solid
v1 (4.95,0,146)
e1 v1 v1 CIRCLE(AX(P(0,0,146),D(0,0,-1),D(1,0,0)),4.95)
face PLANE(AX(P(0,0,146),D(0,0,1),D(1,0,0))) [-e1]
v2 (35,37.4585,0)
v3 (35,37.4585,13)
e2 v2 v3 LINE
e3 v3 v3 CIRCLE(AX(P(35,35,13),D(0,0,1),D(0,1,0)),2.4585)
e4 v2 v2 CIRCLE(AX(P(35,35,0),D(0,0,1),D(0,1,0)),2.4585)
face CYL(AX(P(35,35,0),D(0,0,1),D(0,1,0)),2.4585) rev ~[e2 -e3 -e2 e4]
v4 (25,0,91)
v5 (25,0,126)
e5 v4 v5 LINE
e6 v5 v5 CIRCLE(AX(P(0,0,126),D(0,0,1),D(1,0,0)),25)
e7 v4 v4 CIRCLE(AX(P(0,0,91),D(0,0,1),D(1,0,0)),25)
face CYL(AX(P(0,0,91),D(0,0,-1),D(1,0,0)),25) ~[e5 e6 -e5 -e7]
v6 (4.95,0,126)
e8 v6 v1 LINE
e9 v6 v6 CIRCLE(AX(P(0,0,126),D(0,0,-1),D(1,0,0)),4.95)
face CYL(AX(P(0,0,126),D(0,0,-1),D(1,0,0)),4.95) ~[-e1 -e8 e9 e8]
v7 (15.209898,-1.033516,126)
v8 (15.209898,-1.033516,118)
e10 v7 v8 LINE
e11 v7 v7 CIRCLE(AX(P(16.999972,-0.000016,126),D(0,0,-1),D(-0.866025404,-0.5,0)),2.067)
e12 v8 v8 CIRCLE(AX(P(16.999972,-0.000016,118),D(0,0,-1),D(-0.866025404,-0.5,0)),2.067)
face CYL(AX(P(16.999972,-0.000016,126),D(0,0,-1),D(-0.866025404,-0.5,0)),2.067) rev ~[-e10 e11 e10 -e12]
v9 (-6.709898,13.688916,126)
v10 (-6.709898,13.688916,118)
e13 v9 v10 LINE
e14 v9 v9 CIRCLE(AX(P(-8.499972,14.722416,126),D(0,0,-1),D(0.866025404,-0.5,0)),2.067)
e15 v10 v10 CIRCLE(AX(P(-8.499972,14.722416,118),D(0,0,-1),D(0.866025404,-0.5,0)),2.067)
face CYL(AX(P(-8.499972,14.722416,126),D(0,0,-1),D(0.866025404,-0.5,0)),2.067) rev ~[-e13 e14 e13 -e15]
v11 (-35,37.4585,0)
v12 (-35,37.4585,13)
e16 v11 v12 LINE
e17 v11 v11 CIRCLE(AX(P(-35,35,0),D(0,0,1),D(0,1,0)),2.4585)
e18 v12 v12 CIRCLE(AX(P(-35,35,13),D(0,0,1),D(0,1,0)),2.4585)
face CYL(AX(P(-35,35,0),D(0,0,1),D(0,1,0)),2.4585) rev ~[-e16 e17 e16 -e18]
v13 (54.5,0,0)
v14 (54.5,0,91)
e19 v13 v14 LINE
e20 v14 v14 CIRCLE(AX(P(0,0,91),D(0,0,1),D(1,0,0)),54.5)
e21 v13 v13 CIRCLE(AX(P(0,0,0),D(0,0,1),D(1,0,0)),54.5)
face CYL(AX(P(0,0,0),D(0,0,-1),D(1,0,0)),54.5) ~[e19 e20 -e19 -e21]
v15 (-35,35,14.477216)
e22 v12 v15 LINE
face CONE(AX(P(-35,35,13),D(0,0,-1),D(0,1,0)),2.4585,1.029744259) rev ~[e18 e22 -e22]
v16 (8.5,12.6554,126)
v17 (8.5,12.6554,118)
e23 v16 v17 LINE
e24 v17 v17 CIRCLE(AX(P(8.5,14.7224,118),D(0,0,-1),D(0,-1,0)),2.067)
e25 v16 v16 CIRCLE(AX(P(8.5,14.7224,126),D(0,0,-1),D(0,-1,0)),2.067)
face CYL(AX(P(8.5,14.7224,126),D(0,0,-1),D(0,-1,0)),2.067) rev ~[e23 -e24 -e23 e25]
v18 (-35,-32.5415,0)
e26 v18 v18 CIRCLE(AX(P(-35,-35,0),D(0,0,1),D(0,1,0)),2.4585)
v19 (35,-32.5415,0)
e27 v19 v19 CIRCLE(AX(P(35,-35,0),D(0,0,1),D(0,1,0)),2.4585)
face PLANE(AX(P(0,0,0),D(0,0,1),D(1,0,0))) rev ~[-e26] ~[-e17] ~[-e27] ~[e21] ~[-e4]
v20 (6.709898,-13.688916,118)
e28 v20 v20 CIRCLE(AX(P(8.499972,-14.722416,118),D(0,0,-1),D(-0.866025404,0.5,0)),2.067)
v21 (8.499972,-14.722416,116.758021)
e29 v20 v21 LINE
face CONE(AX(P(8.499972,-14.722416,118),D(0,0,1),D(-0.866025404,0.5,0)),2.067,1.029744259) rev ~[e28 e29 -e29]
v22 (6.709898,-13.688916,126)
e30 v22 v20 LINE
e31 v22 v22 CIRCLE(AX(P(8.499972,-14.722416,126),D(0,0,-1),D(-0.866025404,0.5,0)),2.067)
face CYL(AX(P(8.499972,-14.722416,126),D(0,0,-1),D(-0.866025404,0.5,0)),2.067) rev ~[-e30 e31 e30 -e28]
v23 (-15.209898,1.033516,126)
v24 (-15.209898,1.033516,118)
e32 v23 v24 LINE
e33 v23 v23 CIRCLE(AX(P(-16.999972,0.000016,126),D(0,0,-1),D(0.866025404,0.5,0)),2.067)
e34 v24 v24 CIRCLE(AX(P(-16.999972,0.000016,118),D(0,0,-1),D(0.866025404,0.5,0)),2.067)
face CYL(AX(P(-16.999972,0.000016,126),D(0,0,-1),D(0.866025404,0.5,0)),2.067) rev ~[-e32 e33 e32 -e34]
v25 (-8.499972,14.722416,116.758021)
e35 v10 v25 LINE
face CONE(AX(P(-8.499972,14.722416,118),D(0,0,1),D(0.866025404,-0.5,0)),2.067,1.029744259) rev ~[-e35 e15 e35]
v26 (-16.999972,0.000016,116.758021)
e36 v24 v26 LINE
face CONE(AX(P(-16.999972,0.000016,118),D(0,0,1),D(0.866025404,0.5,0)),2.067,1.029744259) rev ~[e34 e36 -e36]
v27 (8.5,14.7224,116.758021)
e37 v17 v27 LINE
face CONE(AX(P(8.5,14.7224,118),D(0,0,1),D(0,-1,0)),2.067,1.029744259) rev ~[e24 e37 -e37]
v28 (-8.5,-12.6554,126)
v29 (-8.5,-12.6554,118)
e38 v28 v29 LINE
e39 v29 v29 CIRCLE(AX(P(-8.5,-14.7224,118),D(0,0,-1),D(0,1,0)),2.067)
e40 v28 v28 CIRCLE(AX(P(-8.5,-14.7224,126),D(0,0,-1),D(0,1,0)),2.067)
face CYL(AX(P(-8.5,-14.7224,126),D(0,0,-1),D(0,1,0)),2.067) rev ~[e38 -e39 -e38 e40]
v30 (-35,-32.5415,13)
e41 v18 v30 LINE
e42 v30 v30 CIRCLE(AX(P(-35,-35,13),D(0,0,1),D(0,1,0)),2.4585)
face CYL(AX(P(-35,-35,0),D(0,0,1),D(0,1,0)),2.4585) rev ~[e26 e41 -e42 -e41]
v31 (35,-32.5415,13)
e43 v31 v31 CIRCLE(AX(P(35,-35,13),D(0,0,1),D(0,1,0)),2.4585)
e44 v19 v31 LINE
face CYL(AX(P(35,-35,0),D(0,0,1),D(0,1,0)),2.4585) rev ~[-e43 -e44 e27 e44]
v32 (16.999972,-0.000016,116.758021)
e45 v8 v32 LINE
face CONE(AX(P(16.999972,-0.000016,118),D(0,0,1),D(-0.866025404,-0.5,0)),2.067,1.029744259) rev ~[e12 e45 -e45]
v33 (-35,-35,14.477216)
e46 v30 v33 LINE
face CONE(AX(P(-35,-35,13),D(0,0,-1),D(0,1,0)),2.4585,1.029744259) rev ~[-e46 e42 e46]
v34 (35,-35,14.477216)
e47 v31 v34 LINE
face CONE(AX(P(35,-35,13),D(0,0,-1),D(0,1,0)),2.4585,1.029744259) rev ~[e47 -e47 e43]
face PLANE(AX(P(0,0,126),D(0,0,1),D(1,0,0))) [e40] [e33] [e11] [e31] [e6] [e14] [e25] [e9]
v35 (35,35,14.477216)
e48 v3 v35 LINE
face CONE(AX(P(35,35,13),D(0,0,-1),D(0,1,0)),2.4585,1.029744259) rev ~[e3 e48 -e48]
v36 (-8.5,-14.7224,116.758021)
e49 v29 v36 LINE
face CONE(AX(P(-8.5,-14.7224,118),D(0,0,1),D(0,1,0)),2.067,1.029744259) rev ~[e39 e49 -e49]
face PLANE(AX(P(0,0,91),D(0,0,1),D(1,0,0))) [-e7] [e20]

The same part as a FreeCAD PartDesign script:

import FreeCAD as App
import Part
import Sketcher

doc = App.newDocument("Part")
params = doc.addObject("Spreadsheet::Sheet", "Params")
for row, (alias, value) in enumerate([
    ("sketch1_diameter", "109 mm"),
    ("pad1_length", "91 mm"),
    ("sketch2_diameter", "50 mm"),
    ("pad2_length", "35 mm"),
    ("hole_diameter", "4.917 mm"),
    ("hole_depth", "13 mm"),
    ("hole2_diameter", "4.917 mm"),
    ("hole2_depth", "13 mm"),
    ("hole3_diameter", "4.917 mm"),
    ("hole3_depth", "13 mm"),
    ("hole4_diameter", "4.917 mm"),
    ("hole4_depth", "13 mm"),
    ("sketch7_diameter", "9.9 mm"),
    ("pad3_length", "20 mm"),
    ("hole5_diameter", "4.134 mm"),
    ("hole5_depth", "8 mm"),
], start=1):
    params.set(f"A{row}", alias)
    params.set(f"B{row}", "=" + value)
    params.setAlias(f"B{row}", alias)

body = doc.addObject("PartDesign::Body", "Body")

# Sketch on XY plane
sketch1 = body.newObject("Sketcher::SketchObject", "Sketch")
sketch1.AttachmentSupport = (doc.getObject("XY_Plane"), [""])
sketch1.MapMode = "FlatFace"
sketch1.addGeometry(Part.Circle(App.Vector(0, 0, 0), App.Vector(0, 0, 1), 54), False)
sketch1.addConstraint(Sketcher.Constraint("Coincident", 0, 3, -1, 1))
sketch1.addConstraint(Sketcher.Constraint("Diameter", 0, 109.0))
sketch1.setExpression("Constraints[1]", "Params.sketch1_diameter")
pad1 = body.newObject("PartDesign::Pad", "Pad")
pad1.Profile = sketch1
pad1.setExpression("Length", "Params.pad1_length")

# Sketch on XY plane
sketch2 = body.newObject("Sketcher::SketchObject", "Sketch001")
sketch2.AttachmentSupport = (doc.getObject("XY_Plane"), [""])
sketch2.MapMode = "FlatFace"
sketch2.AttachmentOffset = App.Placement(App.Vector(0, 0, 91), App.Rotation())
sketch2.addGeometry(Part.Circle(App.Vector(0, 0, 0), App.Vector(0, 0, 1), 25), False)
sketch2.addConstraint(Sketcher.Constraint("Coincident", 0, 3, -1, 1))
sketch2.addConstraint(Sketcher.Constraint("Diameter", 0, 50.0))
sketch2.setExpression("Constraints[1]", "Params.sketch2_diameter")
pad2 = body.newObject("PartDesign::Pad", "Pad001")
pad2.Profile = sketch2
pad2.setExpression("Length", "Params.pad2_length")

# Sketch on XY plane
sketch3 = body.newObject("Sketcher::SketchObject", "Sketch002")
sketch3.AttachmentSupport = (doc.getObject("XY_Plane"), [""])
sketch3.MapMode = "FlatFace"
sketch3.addGeometry(Part.Circle(App.Vector(35, 35, 0), App.Vector(0, 0, 1), 2.5), False)
sketch3.addConstraint(Sketcher.Constraint("Diameter", 0, 4.917))
sketch3.addConstraint(Sketcher.Constraint("DistanceX", -1, 1, 0, 3, 35.0))
sketch3.addConstraint(Sketcher.Constraint("DistanceY", -1, 1, 0, 3, 35.0))
doc.recompute()
hole = body.newObject("PartDesign::Hole", "Hole")
hole.Profile = sketch3
hole.ThreadType = "None"
hole.setExpression("Diameter", "Params.hole_diameter")
hole.DepthType = "Dimension"
hole.setExpression("Depth", "Params.hole_depth")
hole.DrillPoint = "Angled"
hole.DrillPointAngle = 118
hole.Reversed = True

# Sketch on XY plane
sketch4 = body.newObject("Sketcher::SketchObject", "Sketch003")
sketch4.AttachmentSupport = (doc.getObject("XY_Plane"), [""])
sketch4.MapMode = "FlatFace"
sketch4.addGeometry(Part.Circle(App.Vector(35, -35, 0), App.Vector(0, 0, 1), 2.5), False)
sketch4.addConstraint(Sketcher.Constraint("Diameter", 0, 4.917))
sketch4.addConstraint(Sketcher.Constraint("DistanceX", -1, 1, 0, 3, 35.0))
sketch4.addConstraint(Sketcher.Constraint("DistanceY", 0, 3, -1, 1, 35.0))
doc.recompute()
hole2 = body.newObject("PartDesign::Hole", "Hole001")
hole2.Profile = sketch4
hole2.ThreadType = "None"
hole2.setExpression("Diameter", "Params.hole2_diameter")
hole2.DepthType = "Dimension"
hole2.setExpression("Depth", "Params.hole2_depth")
hole2.DrillPoint = "Angled"
hole2.DrillPointAngle = 118
hole2.Reversed = True

# Sketch on XY plane
sketch5 = body.newObject("Sketcher::SketchObject", "Sketch004")
sketch5.AttachmentSupport = (doc.getObject("XY_Plane"), [""])
sketch5.MapMode = "FlatFace"
sketch5.addGeometry(Part.Circle(App.Vector(-35, -35, 0), App.Vector(0, 0, 1), 2.5), False)
sketch5.addConstraint(Sketcher.Constraint("Diameter", 0, 4.917))
sketch5.addConstraint(Sketcher.Constraint("DistanceX", 0, 3, -1, 1, 35.0))
sketch5.addConstraint(Sketcher.Constraint("DistanceY", 0, 3, -1, 1, 35.0))
doc.recompute()
hole3 = body.newObject("PartDesign::Hole", "Hole002")
hole3.Profile = sketch5
hole3.ThreadType = "None"
hole3.setExpression("Diameter", "Params.hole3_diameter")
hole3.DepthType = "Dimension"
hole3.setExpression("Depth", "Params.hole3_depth")
hole3.DrillPoint = "Angled"
hole3.DrillPointAngle = 118
hole3.Reversed = True

# Sketch on XY plane
sketch6 = body.newObject("Sketcher::SketchObject", "Sketch005")
sketch6.AttachmentSupport = (doc.getObject("XY_Plane"), [""])
sketch6.MapMode = "FlatFace"
sketch6.addGeometry(Part.Circle(App.Vector(-35, 35, 0), App.Vector(0, 0, 1), 2.5), False)
sketch6.addConstraint(Sketcher.Constraint("Diameter", 0, 4.917))
sketch6.addConstraint(Sketcher.Constraint("DistanceX", 0, 3, -1, 1, 35.0))
sketch6.addConstraint(Sketcher.Constraint("DistanceY", -1, 1, 0, 3, 35.0))
doc.recompute()
hole4 = body.newObject("PartDesign::Hole", "Hole003")
hole4.Profile = sketch6
hole4.ThreadType = "None"
hole4.setExpression("Diameter", "Params.hole4_diameter")
hole4.DepthType = "Dimension"
hole4.setExpression("Depth", "Params.hole4_depth")
hole4.DrillPoint = "Angled"
hole4.DrillPointAngle = 118
hole4.Reversed = True

# Sketch on XY plane
sketch7 = body.newObject("Sketcher::SketchObject", "Sketch006")
sketch7.AttachmentSupport = (doc.getObject("XY_Plane"), [""])
sketch7.MapMode = "FlatFace"
sketch7.AttachmentOffset = App.Placement(App.Vector(0, 0, 126), App.Rotation())
sketch7.addGeometry(Part.Circle(App.Vector(0, 0, 0), App.Vector(0, 0, 1), 5), False)
sketch7.addConstraint(Sketcher.Constraint("Coincident", 0, 3, -1, 1))
sketch7.addConstraint(Sketcher.Constraint("Diameter", 0, 9.9))
sketch7.setExpression("Constraints[1]", "Params.sketch7_diameter")
pad3 = body.newObject("PartDesign::Pad", "Pad002")
pad3.Profile = sketch7
pad3.setExpression("Length", "Params.pad3_length")

# Sketch on XY plane
sketch8 = body.newObject("Sketcher::SketchObject", "Sketch007")
sketch8.AttachmentSupport = (doc.getObject("XY_Plane"), [""])
sketch8.MapMode = "FlatFace"
sketch8.AttachmentOffset = App.Placement(App.Vector(0, 0, 126), App.Rotation())
sketch8.addGeometry(Part.Circle(App.Vector(8.5, 14.7, 0), App.Vector(0, 0, 1), 2.1), False)
sketch8.addConstraint(Sketcher.Constraint("Diameter", 0, 4.134))
sketch8.addConstraint(Sketcher.Constraint("DistanceX", -1, 1, 0, 3, 8.5))
sketch8.addConstraint(Sketcher.Constraint("DistanceY", -1, 1, 0, 3, 14.7224))
doc.recompute()
hole5 = body.newObject("PartDesign::Hole", "Hole004")
hole5.Profile = sketch8
hole5.ThreadType = "None"
hole5.setExpression("Diameter", "Params.hole5_diameter")
hole5.DepthType = "Dimension"
hole5.setExpression("Depth", "Params.hole5_depth")
hole5.DrillPoint = "Angled"
hole5.DrillPointAngle = 118
doc.recompute()

polarpattern = body.newObject("PartDesign::PolarPattern", "PolarPattern")
polarpattern.Originals = [hole5]
polarpattern.Axis = (doc.getObject("Z_Axis"), [""])
polarpattern.Angle = 360
polarpattern.Occurrences = 6
body.Tip = polarpattern

doc.recompute()
